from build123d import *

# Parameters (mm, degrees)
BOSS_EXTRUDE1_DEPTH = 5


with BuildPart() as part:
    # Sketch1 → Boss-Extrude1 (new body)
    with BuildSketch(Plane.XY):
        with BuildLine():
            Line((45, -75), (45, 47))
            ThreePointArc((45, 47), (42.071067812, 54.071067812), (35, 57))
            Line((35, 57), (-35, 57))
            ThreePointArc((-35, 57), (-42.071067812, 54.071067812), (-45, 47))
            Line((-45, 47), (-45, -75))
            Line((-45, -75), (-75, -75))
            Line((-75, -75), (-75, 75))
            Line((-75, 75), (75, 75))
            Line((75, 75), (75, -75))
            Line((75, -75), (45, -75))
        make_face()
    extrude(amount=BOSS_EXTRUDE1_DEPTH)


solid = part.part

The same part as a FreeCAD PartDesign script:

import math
import FreeCAD as App
import Part
import Sketcher

doc = App.newDocument("Part")
params = doc.addObject("Spreadsheet::Sheet", "Params")
for row, (alias, value) in enumerate([
    ("sketch1_radius", "10 mm"),
    ("sketch1_width", "30 mm"),
    ("sketch1_width2", "150 mm"),
    ("sketch1_height", "122 mm"),
    ("pad1_length", "5 mm"),
], start=1):
    params.set(f"A{row}", alias)
    params.set(f"B{row}", "=" + value)
    params.setAlias(f"B{row}", alias)

body = doc.addObject("PartDesign::Body", "Body")

sketch1 = body.newObject("Sketcher::SketchObject", "Sketch")
sketch1.AttachmentSupport = (doc.getObject("XY_Plane"), [""])
sketch1.MapMode = "FlatFace"
sketch1.addGeometry([
    Part.LineSegment(App.Vector(45, 47, 0), App.Vector(45, -75, 0)),
    Part.LineSegment(App.Vector(45, -75, 0), App.Vector(75, -75, 0)),
    Part.LineSegment(App.Vector(75, -75, 0), App.Vector(75, 75, 0)),
    Part.LineSegment(App.Vector(75, 75, 0), App.Vector(-75, 75, 0)),
    Part.LineSegment(App.Vector(-75, 75, 0), App.Vector(-75, -75, 0)),
    Part.LineSegment(App.Vector(-75, -75, 0), App.Vector(-45, -75, 0)),
    Part.LineSegment(App.Vector(-45, -75, 0), App.Vector(-45, 47, 0)),
    Part.ArcOfCircle(Part.Circle(App.Vector(-35, 47, 0), App.Vector(0, 0, 1), 10), math.radians(90), math.radians(180)),
    Part.LineSegment(App.Vector(-35, 57, 0), App.Vector(35, 57, 0)),
    Part.ArcOfCircle(Part.Circle(App.Vector(35, 47, 0), App.Vector(0, 0, 1), 10), math.radians(0), math.radians(90)),
], False)
sketch1.addConstraint([
    Sketcher.Constraint("Coincident", 0, 2, 1, 1),
    Sketcher.Constraint("Coincident", 1, 2, 2, 1),
    Sketcher.Constraint("Coincident", 2, 2, 3, 1),
    Sketcher.Constraint("Coincident", 3, 2, 4, 1),
    Sketcher.Constraint("Coincident", 4, 2, 5, 1),
    Sketcher.Constraint("Coincident", 5, 2, 6, 1),
    Sketcher.Constraint("Tangent", 6, 2, 7, 2),
    Sketcher.Constraint("Tangent", 7, 1, 8, 1),
    Sketcher.Constraint("Tangent", 8, 2, 9, 2),
    Sketcher.Constraint("Tangent", 9, 1, 0, 1),
    Sketcher.Constraint("Vertical", 0),
    Sketcher.Constraint("Horizontal", 1),
    Sketcher.Constraint("Vertical", 2),
    Sketcher.Constraint("Horizontal", 3),
    Sketcher.Constraint("Vertical", 4),
    Sketcher.Constraint("Horizontal", 5),
    Sketcher.Constraint("Vertical", 6),
    Sketcher.Constraint("Horizontal", 8),
    Sketcher.Constraint("Equal", 7, 9),
    Sketcher.Constraint("Symmetric", 1, 2, 3, 2, -1, 1),
    Sketcher.Constraint("Symmetric", 0, 2, 5, 2, -2),
    Sketcher.Constraint("Equal", 3, 2),
    Sketcher.Constraint("Radius", 7, 10.0),
    Sketcher.Constraint("DistanceX", 1, 1, 1, 2, 30.0),
    Sketcher.Constraint("DistanceX", 3, 2, 3, 1, 150.0),
    Sketcher.Constraint("DistanceY", 0, 2, 0, 1, 122.0),
])
sketch1.setExpression("Constraints[22]", "Params.sketch1_radius")
sketch1.setExpression("Constraints[23]", "Params.sketch1_width")
sketch1.setExpression("Constraints[24]", "Params.sketch1_width2")
sketch1.setExpression("Constraints[25]", "Params.sketch1_height")
pad1 = body.newObject("PartDesign::Pad", "Pad")
pad1.Profile = sketch1
pad1.setExpression("Length", "Params.pad1_length")

doc.recompute()
